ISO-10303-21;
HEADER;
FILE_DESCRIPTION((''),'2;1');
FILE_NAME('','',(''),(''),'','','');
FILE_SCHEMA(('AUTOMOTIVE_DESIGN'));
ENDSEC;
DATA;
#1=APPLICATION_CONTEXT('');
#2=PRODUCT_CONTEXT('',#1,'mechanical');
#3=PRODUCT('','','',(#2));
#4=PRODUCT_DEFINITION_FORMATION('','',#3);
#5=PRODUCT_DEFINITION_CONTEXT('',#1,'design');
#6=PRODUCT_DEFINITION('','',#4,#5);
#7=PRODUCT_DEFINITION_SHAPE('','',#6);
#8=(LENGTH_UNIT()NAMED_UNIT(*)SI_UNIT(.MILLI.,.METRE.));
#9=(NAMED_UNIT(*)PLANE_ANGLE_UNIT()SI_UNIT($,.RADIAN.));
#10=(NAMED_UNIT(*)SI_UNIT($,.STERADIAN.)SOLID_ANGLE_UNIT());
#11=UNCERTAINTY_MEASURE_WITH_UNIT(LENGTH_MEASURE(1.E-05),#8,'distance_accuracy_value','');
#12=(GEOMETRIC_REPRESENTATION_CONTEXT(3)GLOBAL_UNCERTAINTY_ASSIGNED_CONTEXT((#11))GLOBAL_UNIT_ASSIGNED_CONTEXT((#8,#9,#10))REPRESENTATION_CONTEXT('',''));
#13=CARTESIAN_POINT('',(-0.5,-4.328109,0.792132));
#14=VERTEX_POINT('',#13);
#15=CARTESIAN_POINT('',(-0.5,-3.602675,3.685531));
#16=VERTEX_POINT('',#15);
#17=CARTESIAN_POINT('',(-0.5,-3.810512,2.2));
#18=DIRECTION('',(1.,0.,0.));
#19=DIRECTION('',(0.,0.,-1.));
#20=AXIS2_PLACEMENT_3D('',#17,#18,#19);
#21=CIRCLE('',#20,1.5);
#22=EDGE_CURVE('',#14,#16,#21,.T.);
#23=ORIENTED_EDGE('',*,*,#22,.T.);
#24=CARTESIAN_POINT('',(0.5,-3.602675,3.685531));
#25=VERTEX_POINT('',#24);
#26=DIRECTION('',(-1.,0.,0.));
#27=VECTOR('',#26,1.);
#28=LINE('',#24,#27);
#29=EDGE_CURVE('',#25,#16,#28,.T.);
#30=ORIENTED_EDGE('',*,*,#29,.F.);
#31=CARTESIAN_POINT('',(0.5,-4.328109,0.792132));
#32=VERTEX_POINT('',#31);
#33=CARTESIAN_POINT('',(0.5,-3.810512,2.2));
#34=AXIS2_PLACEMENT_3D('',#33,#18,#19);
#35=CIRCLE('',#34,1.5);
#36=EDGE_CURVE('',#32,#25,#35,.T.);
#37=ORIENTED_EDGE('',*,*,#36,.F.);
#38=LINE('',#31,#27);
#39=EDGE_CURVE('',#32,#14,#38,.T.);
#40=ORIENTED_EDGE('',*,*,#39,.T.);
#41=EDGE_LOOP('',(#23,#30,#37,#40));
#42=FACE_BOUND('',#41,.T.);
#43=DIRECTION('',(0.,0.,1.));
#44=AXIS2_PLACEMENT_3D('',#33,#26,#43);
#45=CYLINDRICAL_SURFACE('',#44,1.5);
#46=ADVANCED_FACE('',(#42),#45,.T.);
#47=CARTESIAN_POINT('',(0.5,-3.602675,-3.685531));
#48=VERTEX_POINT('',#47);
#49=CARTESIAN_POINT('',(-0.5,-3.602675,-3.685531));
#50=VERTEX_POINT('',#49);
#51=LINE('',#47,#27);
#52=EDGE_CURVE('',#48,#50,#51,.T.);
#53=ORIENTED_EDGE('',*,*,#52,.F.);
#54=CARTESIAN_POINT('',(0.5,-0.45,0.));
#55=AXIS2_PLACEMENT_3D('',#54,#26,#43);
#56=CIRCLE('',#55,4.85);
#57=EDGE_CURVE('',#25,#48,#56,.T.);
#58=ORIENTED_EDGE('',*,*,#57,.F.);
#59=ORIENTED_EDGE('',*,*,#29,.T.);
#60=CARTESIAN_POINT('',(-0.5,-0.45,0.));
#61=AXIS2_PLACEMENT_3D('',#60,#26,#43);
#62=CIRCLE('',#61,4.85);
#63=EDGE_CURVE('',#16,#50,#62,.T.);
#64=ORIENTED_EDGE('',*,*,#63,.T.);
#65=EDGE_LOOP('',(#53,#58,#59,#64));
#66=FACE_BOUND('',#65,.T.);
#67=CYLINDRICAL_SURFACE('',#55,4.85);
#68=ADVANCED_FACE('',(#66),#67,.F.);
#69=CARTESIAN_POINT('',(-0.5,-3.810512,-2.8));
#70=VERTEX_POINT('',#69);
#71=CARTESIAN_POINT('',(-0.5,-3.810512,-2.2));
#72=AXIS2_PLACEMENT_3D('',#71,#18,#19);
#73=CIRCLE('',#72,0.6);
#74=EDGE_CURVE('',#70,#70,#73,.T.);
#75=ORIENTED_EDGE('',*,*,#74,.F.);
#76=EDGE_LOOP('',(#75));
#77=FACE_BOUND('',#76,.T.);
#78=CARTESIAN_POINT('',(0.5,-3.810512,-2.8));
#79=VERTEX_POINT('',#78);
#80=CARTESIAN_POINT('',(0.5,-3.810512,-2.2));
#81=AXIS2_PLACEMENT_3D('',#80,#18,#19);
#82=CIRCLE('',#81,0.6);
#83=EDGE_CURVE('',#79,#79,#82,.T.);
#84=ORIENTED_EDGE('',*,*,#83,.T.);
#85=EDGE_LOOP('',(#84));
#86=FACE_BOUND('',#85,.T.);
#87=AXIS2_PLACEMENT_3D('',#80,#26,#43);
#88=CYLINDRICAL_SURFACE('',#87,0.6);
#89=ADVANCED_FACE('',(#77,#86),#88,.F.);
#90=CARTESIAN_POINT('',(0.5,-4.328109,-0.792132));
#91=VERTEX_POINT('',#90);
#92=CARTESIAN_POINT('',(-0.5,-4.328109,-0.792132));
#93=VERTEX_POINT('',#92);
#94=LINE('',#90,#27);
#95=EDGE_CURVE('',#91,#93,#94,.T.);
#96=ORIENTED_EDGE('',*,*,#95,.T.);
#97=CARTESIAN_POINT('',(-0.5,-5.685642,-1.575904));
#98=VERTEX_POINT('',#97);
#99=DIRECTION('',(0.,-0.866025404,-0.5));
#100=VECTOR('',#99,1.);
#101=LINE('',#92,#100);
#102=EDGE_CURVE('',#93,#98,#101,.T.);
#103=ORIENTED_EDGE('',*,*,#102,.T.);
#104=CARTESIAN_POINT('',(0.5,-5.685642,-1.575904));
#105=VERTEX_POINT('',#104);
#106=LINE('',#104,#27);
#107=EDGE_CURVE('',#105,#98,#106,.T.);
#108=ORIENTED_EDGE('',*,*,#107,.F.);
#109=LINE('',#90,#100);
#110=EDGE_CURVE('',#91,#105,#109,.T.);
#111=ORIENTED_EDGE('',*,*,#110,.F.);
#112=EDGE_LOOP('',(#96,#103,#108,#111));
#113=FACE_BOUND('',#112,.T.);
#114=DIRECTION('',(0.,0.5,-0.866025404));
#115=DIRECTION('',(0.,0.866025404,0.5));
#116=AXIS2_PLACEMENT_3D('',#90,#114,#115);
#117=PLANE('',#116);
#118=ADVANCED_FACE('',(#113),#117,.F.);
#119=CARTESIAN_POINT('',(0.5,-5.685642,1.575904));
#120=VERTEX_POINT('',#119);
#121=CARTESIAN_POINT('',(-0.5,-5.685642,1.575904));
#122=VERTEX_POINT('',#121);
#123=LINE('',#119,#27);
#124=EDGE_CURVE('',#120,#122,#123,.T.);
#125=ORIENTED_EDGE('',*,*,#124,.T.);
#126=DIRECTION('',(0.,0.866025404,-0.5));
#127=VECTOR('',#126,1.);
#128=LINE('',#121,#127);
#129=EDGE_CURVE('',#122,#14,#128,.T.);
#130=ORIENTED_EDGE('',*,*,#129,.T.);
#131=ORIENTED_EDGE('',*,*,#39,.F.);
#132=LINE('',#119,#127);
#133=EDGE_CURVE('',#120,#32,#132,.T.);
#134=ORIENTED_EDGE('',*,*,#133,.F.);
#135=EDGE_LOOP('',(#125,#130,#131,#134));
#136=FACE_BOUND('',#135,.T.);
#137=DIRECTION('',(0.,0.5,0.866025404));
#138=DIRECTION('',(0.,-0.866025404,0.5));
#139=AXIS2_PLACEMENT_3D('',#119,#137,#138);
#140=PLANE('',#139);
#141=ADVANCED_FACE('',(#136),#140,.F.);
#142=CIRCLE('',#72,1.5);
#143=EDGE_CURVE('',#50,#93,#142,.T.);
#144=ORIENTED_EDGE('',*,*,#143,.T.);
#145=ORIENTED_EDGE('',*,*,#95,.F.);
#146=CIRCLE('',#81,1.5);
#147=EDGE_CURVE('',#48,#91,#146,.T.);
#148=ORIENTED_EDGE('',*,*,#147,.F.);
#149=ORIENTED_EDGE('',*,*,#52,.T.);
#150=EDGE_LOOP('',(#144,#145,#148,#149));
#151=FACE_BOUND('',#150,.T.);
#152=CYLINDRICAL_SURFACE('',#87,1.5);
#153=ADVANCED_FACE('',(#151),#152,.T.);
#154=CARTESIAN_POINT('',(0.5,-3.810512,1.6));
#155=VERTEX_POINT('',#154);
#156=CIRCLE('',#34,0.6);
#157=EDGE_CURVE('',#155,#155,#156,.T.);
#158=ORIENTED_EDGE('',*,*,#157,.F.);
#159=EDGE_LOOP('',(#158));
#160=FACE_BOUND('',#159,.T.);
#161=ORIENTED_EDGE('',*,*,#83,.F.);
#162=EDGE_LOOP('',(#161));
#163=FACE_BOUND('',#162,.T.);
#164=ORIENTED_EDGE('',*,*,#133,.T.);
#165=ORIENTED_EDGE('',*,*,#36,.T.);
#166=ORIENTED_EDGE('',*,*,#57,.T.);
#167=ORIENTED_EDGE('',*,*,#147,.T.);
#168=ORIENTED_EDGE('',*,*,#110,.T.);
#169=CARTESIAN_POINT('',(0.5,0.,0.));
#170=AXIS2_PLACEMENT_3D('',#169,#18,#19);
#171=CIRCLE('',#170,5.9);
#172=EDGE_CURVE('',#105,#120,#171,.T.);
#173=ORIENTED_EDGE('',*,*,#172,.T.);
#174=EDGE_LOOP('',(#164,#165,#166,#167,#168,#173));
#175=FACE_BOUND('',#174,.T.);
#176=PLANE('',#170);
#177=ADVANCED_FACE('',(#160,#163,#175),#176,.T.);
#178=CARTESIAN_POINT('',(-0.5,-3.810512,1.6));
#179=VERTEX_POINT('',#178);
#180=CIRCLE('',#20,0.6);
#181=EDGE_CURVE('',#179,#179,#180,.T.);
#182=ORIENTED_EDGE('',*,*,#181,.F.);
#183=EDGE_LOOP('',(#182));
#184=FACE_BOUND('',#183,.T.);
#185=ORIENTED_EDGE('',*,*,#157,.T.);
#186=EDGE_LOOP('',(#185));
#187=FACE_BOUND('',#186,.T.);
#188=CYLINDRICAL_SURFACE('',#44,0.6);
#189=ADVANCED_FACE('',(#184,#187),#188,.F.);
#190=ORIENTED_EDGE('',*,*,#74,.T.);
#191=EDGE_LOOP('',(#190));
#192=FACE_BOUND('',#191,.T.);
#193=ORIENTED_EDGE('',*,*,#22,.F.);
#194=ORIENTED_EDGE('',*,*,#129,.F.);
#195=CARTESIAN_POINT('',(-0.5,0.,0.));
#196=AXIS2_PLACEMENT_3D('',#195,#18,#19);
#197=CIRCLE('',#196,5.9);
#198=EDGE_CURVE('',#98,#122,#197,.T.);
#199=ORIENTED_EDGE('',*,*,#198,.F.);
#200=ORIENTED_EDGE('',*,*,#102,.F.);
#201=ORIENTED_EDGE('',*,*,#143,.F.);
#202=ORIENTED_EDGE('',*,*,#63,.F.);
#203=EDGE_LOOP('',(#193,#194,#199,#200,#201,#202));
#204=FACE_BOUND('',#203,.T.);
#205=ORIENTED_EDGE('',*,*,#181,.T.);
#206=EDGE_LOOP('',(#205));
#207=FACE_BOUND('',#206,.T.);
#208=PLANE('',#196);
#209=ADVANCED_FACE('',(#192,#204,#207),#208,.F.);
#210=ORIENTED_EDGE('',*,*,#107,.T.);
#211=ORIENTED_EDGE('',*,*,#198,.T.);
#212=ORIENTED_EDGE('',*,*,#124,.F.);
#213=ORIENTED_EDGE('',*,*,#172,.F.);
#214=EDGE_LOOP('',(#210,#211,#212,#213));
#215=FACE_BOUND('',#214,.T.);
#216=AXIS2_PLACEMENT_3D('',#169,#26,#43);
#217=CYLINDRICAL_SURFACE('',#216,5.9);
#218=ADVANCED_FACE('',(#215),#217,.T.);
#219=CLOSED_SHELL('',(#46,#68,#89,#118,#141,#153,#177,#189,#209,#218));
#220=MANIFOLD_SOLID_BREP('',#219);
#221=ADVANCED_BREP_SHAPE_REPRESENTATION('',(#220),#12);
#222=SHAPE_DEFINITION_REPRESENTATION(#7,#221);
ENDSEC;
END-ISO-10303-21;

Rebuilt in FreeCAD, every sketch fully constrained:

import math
import FreeCAD as App
import Part
import Sketcher
from FreeCAD import Vector
Q = App.Units.Quantity

doc = App.newDocument("Part")
body = doc.addObject("PartDesign::Body", "Body")

sketch1 = body.newObject("Sketcher::SketchObject", "Sketch")
sketch1.AttachmentSupport = (doc.getObject("YZ_Plane"), [""])
sketch1.MapMode = "FlatFace"
sketch1.addGeometry([
    Part.LineSegment(Vector(-5.7, 1.6, 0), Vector(-4.3, 0.8, 0)),
    Part.ArcOfCircle(Part.Circle(Vector(-3.8, 2.2, 0), Vector(0, 0, 1), 1.5), math.radians(-110), math.radians(82)),
    Part.ArcOfCircle(Part.Circle(Vector(-0.5, 0, 0), Vector(0, 0, 1), 4.8), math.radians(-131), math.radians(131)),
    Part.ArcOfCircle(Part.Circle(Vector(-3.8, -2.2, 0), Vector(0, 0, 1), 1.5), math.radians(-82), math.radians(110)),
    Part.LineSegment(Vector(-4.3, -0.8, 0), Vector(-5.7, -1.6, 0)),
    Part.ArcOfCircle(Part.Circle(Vector(0, 0, 0), Vector(0, 0, 1), 5.9), math.radians(-165), math.radians(165)),
    Part.Circle(Vector(-3.8, 2.2, 0), Vector(0, 0, 1), 0.6),
    Part.Circle(Vector(-3.8, -2.2, 0), Vector(0, 0, 1), 0.6),
], False)
sketch1.addConstraint([
    Sketcher.Constraint("Coincident", 0, 2, 1, 1),
    Sketcher.Constraint("Coincident", 1, 2, 2, 2),
    Sketcher.Constraint("Coincident", 2, 1, 3, 1),
    Sketcher.Constraint("Coincident", 3, 2, 4, 1),
    Sketcher.Constraint("Coincident", 4, 2, 5, 1),
    Sketcher.Constraint("Coincident", 5, 2, 0, 1),
    Sketcher.Constraint("Coincident", 5, 3, -1, 1),
    Sketcher.Constraint("Coincident", 6, 3, 1, 3),
    Sketcher.Constraint("Coincident", 7, 3, 3, 3),
    Sketcher.Constraint("Equal", 1, 3),
    Sketcher.Constraint("Equal", 6, 7),
    Sketcher.Constraint("Symmetric", 1, 3, 3, 3, -1),
    Sketcher.Constraint("PointOnObject", 2, 3, -1),
    Sketcher.Constraint("Vertical", 0, 2, 3, 2),
    Sketcher.Constraint("Vertical", 4, 2, 5, 2),
    Sketcher.Constraint("Diameter", 6, 1.2),
    Sketcher.Constraint("Radius", 1, 1.5),
    Sketcher.Constraint("Radius", 5, 5.9),
    Sketcher.Constraint("Angle", 0, Q("-30 deg")),
    Sketcher.Constraint("Radius", 2, 4.85),
    Sketcher.Constraint("DistanceY", -1, 1, 1, 3, 2.2),
    Sketcher.Constraint("DistanceX", 2, 3, -1, 1, 0.45),
    Sketcher.Constraint("DistanceY", 0, 2, 1, 2, 2.8934),
    Sketcher.Constraint("DistanceX", 1, 3, -1, 1, 3.810512),
])
pad1 = body.newObject("PartDesign::Pad", "Pad")
pad1.Profile = sketch1
pad1.Type = "TwoLengths"
pad1.Length = 0.5
pad1.Length2 = 0.5

doc.recompute()
